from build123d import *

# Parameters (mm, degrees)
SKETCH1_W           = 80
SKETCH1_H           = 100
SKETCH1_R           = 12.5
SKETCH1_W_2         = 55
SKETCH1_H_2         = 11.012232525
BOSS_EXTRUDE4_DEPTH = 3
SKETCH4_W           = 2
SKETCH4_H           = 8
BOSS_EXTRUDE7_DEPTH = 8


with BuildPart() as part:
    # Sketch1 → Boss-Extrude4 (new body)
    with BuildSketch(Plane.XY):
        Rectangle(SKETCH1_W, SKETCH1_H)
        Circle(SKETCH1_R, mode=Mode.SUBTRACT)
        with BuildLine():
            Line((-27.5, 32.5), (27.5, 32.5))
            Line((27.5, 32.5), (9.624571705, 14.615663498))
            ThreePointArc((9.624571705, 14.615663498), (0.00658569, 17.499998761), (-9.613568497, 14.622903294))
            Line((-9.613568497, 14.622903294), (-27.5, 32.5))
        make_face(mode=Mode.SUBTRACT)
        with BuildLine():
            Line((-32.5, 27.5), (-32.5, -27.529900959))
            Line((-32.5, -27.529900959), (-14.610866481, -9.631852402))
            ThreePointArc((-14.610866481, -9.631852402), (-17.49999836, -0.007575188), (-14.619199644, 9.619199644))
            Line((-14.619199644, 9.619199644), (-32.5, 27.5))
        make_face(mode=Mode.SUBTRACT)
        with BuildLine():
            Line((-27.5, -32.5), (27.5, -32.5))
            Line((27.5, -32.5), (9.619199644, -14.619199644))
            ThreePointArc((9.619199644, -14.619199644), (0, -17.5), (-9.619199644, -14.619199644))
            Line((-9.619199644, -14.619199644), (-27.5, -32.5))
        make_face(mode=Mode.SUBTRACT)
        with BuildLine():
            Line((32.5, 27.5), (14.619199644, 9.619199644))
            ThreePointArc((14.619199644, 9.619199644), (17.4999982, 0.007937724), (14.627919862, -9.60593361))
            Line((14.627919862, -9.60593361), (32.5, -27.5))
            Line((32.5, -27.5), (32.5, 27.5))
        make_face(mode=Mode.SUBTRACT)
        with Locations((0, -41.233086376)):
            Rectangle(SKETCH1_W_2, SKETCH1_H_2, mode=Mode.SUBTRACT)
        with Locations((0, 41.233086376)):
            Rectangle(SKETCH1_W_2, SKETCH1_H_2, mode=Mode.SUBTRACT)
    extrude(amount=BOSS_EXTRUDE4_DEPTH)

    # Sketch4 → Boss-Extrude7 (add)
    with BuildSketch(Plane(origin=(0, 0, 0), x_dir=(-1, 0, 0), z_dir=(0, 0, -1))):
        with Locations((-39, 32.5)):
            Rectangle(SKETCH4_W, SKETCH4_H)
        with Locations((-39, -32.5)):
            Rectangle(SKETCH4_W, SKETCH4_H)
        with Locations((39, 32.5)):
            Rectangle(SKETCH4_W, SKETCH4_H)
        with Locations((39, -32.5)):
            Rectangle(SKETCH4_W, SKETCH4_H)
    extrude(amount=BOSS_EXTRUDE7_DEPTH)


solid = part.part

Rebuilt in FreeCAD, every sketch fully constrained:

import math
import FreeCAD as App
import Part
import Sketcher

V = App.Vector

doc = App.newDocument("Part")
params = doc.addObject("Spreadsheet::Sheet", "Params")
for row, (alias, value) in enumerate([
    ("sketch1_diameter", "25 mm"),
    ("sketch1_radius", "17.5 mm"),
    ("sketch1_width", "80 mm"),
    ("sketch1_width2", "55 mm"),
    ("sketch1_height", "100 mm"),
    ("pad1_length", "3 mm"),
    ("sketch2_width", "2 mm"),
    ("sketch2_height", "8 mm"),
    ("pad2_length", "8 mm"),
], start=1):
    params.set(f"A{row}", alias)
    params.set(f"B{row}", "=" + value)
    params.setAlias(f"B{row}", alias)

body = doc.addObject("PartDesign::Body", "Body")

# Sketch on XY plane
sketch1 = body.newObject("Sketcher::SketchObject", "Sketch")
sketch1.AttachmentSupport = (doc.getObject("XY_Plane"), [""])
sketch1.MapMode = "FlatFace"
sketch1.addGeometry(Part.LineSegment(V(-40, 50, 0), V(-40, -50, 0)), False)
sketch1.addGeometry(Part.LineSegment(V(-40, -50, 0), V(40, -50, 0)), False)
sketch1.addGeometry(Part.LineSegment(V(40, -50, 0), V(40, 50, 0)), False)
sketch1.addGeometry(Part.LineSegment(V(40, 50, 0), V(-40, 50, 0)), False)
sketch1.addGeometry(Part.LineSegment(V(-32, -28, 0), V(-32, 28, 0)), False)
sketch1.addGeometry(Part.LineSegment(V(-32, 28, 0), V(-15, 10, 0)), False)
sketch1.addGeometry(Part.ArcOfCircle(Part.Circle(V(0, 0, 0), V(0, 0, 1), 18), math.radians(147), math.radians(213)), False)
sketch1.addGeometry(Part.LineSegment(V(-15, -10, 0), V(-32, -28, 0)), False)
sketch1.addGeometry(Part.LineSegment(V(28, -47, 0), V(-28, -47, 0)), False)
sketch1.addGeometry(Part.LineSegment(V(-28, -47, 0), V(-28, -36, 0)), False)
sketch1.addGeometry(Part.LineSegment(V(-28, -36, 0), V(28, -36, 0)), False)
sketch1.addGeometry(Part.LineSegment(V(28, -36, 0), V(28, -47, 0)), False)
sketch1.addGeometry(Part.LineSegment(V(28, -32, 0), V(-28, -32, 0)), False)
sketch1.addGeometry(Part.LineSegment(V(-28, -32, 0), V(-10, -15, 0)), False)
sketch1.addGeometry(Part.ArcOfCircle(Part.Circle(V(0, 0, 0), V(0, 0, 1), 18), math.radians(-123), math.radians(-57)), False)
sketch1.addGeometry(Part.LineSegment(V(10, -15, 0), V(28, -32, 0)), False)
sketch1.addGeometry(Part.Circle(V(0, 0, 0), V(0, 0, 1), 12), False)
sketch1.addGeometry(Part.LineSegment(V(15, 10, 0), V(32, 28, 0)), False)
sketch1.addGeometry(Part.LineSegment(V(32, 28, 0), V(32, -28, 0)), False)
sketch1.addGeometry(Part.LineSegment(V(32, -28, 0), V(15, -10, 0)), False)
sketch1.addGeometry(Part.ArcOfCircle(Part.Circle(V(0, 0, 0), V(0, 0, 1), 18), math.radians(-33), math.radians(33)), False)
sketch1.addGeometry(Part.LineSegment(V(-10, 15, 0), V(-28, 32, 0)), False)
sketch1.addGeometry(Part.LineSegment(V(-28, 32, 0), V(28, 32, 0)), False)
sketch1.addGeometry(Part.LineSegment(V(28, 32, 0), V(10, 15, 0)), False)
sketch1.addGeometry(Part.ArcOfCircle(Part.Circle(V(0, 0, 0), V(0, 0, 1), 17), math.radians(57), math.radians(123)), False)
sketch1.addGeometry(Part.LineSegment(V(28, 36, 0), V(-28, 36, 0)), False)
sketch1.addGeometry(Part.LineSegment(V(-28, 36, 0), V(-28, 47, 0)), False)
sketch1.addGeometry(Part.LineSegment(V(-28, 47, 0), V(28, 47, 0)), False)
sketch1.addGeometry(Part.LineSegment(V(28, 47, 0), V(28, 36, 0)), False)
sketch1.addConstraint(Sketcher.Constraint("Coincident", 0, 2, 1, 1))
sketch1.addConstraint(Sketcher.Constraint("Coincident", 1, 2, 2, 1))
sketch1.addConstraint(Sketcher.Constraint("Coincident", 2, 2, 3, 1))
sketch1.addConstraint(Sketcher.Constraint("Coincident", 3, 2, 0, 1))
sketch1.addConstraint(Sketcher.Constraint("Coincident", 4, 2, 5, 1))
sketch1.addConstraint(Sketcher.Constraint("Coincident", 5, 2, 6, 1))
sketch1.addConstraint(Sketcher.Constraint("Coincident", 6, 2, 7, 1))
sketch1.addConstraint(Sketcher.Constraint("Coincident", 7, 2, 4, 1))
sketch1.addConstraint(Sketcher.Constraint("Coincident", 8, 2, 9, 1))
sketch1.addConstraint(Sketcher.Constraint("Coincident", 9, 2, 10, 1))
sketch1.addConstraint(Sketcher.Constraint("Coincident", 10, 2, 11, 1))
sketch1.addConstraint(Sketcher.Constraint("Coincident", 11, 2, 8, 1))
sketch1.addConstraint(Sketcher.Constraint("Coincident", 12, 2, 13, 1))
sketch1.addConstraint(Sketcher.Constraint("Coincident", 13, 2, 14, 1))
sketch1.addConstraint(Sketcher.Constraint("Coincident", 14, 2, 15, 1))
sketch1.addConstraint(Sketcher.Constraint("Coincident", 15, 2, 12, 1))
sketch1.addConstraint(Sketcher.Constraint("Coincident", 17, 2, 18, 1))
sketch1.addConstraint(Sketcher.Constraint("Coincident", 18, 2, 19, 1))
sketch1.addConstraint(Sketcher.Constraint("Coincident", 19, 2, 20, 1))
sketch1.addConstraint(Sketcher.Constraint("Coincident", 20, 2, 17, 1))
sketch1.addConstraint(Sketcher.Constraint("Coincident", 21, 2, 22, 1))
sketch1.addConstraint(Sketcher.Constraint("Coincident", 22, 2, 23, 1))
sketch1.addConstraint(Sketcher.Constraint("Coincident", 23, 2, 24, 1))
sketch1.addConstraint(Sketcher.Constraint("Coincident", 24, 2, 21, 1))
sketch1.addConstraint(Sketcher.Constraint("Coincident", 25, 2, 26, 1))
sketch1.addConstraint(Sketcher.Constraint("Coincident", 26, 2, 27, 1))
sketch1.addConstraint(Sketcher.Constraint("Coincident", 27, 2, 28, 1))
sketch1.addConstraint(Sketcher.Constraint("Coincident", 28, 2, 25, 1))
sketch1.addConstraint(Sketcher.Constraint("Vertical", 0))
sketch1.addConstraint(Sketcher.Constraint("Horizontal", 1))
sketch1.addConstraint(Sketcher.Constraint("Vertical", 2))
sketch1.addConstraint(Sketcher.Constraint("Horizontal", 3))
sketch1.addConstraint(Sketcher.Constraint("Vertical", 4))
sketch1.addConstraint(Sketcher.Constraint("Horizontal", 8))
sketch1.addConstraint(Sketcher.Constraint("Vertical", 9))
sketch1.addConstraint(Sketcher.Constraint("Horizontal", 10))
sketch1.addConstraint(Sketcher.Constraint("Vertical", 11))
sketch1.addConstraint(Sketcher.Constraint("Horizontal", 12))
sketch1.addConstraint(Sketcher.Constraint("Vertical", 18))
sketch1.addConstraint(Sketcher.Constraint("Horizontal", 22))
sketch1.addConstraint(Sketcher.Constraint("Horizontal", 25))
sketch1.addConstraint(Sketcher.Constraint("Vertical", 26))
sketch1.addConstraint(Sketcher.Constraint("Horizontal", 27))
sketch1.addConstraint(Sketcher.Constraint("Vertical", 28))
sketch1.addConstraint(Sketcher.Constraint("Coincident", 6, 3, -1, 1))
sketch1.addConstraint(Sketcher.Constraint("Coincident", 14, 3, -1, 1))
sketch1.addConstraint(Sketcher.Constraint("Coincident", 16, 3, -1, 1))
sketch1.addConstraint(Sketcher.Constraint("Coincident", 20, 3, -1, 1))
sketch1.addConstraint(Sketcher.Constraint("Coincident", 24, 3, -1, 1))
sketch1.addConstraint(Sketcher.Constraint("Equal", 6, 14))
sketch1.addConstraint(Sketcher.Constraint("Equal", 14, 20))
sketch1.addConstraint(Sketcher.Constraint("Equal", 20, 24))
sketch1.addConstraint(Sketcher.Constraint("Symmetric", 0, 2, 2, 2, -1, 1))
sketch1.addConstraint(Sketcher.Constraint("Symmetric", 4, 2, 18, 2, -1, 1))
sketch1.addConstraint(Sketcher.Constraint("Symmetric", 15, 2, 21, 2, -1, 1))
sketch1.addConstraint(Sketcher.Constraint("Symmetric", 10, 2, 25, 2, -1, 1))
sketch1.addConstraint(Sketcher.Constraint("Symmetric", 8, 2, 27, 2, -1, 1))
sketch1.addConstraint(Sketcher.Constraint("Perpendicular", 5, 13))
sketch1.addConstraint(Sketcher.Constraint("Perpendicular", 13, 15))
sketch1.addConstraint(Sketcher.Constraint("Perpendicular", 15, 17))
sketch1.addConstraint(Sketcher.Constraint("Parallel", 7, 23))
sketch1.addConstraint(Sketcher.Constraint("Horizontal", 13, 2, 14, 2))
sketch1.addConstraint(Sketcher.Constraint("Horizontal", 4, 2, 17, 2))
sketch1.addConstraint(Sketcher.Constraint("Horizontal", 5, 2, 20, 2))
sketch1.addConstraint(Sketcher.Constraint("Vertical", 9, 2, 12, 2))
sketch1.addConstraint(Sketcher.Constraint("Vertical", 11, 2, 15, 2))
sketch1.addConstraint(Sketcher.Constraint("Vertical", 15, 2, 22, 2))
sketch1.addConstraint(Sketcher.Constraint("Equal", 27, 18))
sketch1.addConstraint(Sketcher.Constraint("Equal", 5, 13))
sketch1.addConstraint(Sketcher.Constraint("Diameter", 16, 25.0))
sketch1.addConstraint(Sketcher.Constraint("Radius", 6, 17.5))
sketch1.addConstraint(Sketcher.Constraint("DistanceX", 1, 1, 1, 2, 80.0))
sketch1.addConstraint(Sketcher.Constraint("DistanceX", 8, 2, 8, 1, 55.0))
sketch1.addConstraint(Sketcher.Constraint("DistanceY", 0, 2, 0, 1, 100.0))
sketch1.addConstraint(Sketcher.Constraint("DistanceX", 7, 2, 8, 2, 5.0))
sketch1.addConstraint(Sketcher.Constraint("DistanceY", 4, 1, 4, 2, 55.029901))
sketch1.addConstraint(Sketcher.Constraint("DistanceY", 8, 2, 7, 2, 19.209302))
sketch1.addConstraint(Sketcher.Constraint("DistanceY", 24, 2, 26, 2, 32.116299))
sketch1.addConstraint(Sketcher.Constraint("Distance", 7, 25.30536))
sketch1.addConstraint(Sketcher.Constraint("Distance", 19, 25.29049))
sketch1.addConstraint(Sketcher.Constraint("DistanceY", 9, 1, 9, 2, 11.012233))
sketch1.setExpression("Constraints[69]", "Params.sketch1_diameter")
sketch1.setExpression("Constraints[70]", "Params.sketch1_radius")
sketch1.setExpression("Constraints[71]", "Params.sketch1_width")
sketch1.setExpression("Constraints[72]", "Params.sketch1_width2")
sketch1.setExpression("Constraints[73]", "Params.sketch1_height")
pad1 = body.newObject("PartDesign::Pad", "Pad")
pad1.Profile = sketch1
pad1.setExpression("Length", "Params.pad1_length")

# Sketch on XY plane
sketch2 = body.newObject("Sketcher::SketchObject", "Sketch001")
sketch2.AttachmentSupport = (doc.getObject("XY_Plane"), [""])
sketch2.MapMode = "FlatFace"
sketch2.addGeometry(Part.LineSegment(V(40, 36.5, 0), V(40, 28.5, 0)), False)
sketch2.addGeometry(Part.LineSegment(V(40, 28.5, 0), V(38, 28.5, 0)), False)
sketch2.addGeometry(Part.LineSegment(V(38, 28.5, 0), V(38, 36.5, 0)), False)
sketch2.addGeometry(Part.LineSegment(V(38, 36.5, 0), V(40, 36.5, 0)), False)
sketch2.addGeometry(Part.LineSegment(V(40, -28.5, 0), V(40, -36.5, 0)), False)
sketch2.addGeometry(Part.LineSegment(V(40, -36.5, 0), V(38, -36.5, 0)), False)
sketch2.addGeometry(Part.LineSegment(V(38, -36.5, 0), V(38, -28.5, 0)), False)
sketch2.addGeometry(Part.LineSegment(V(38, -28.5, 0), V(40, -28.5, 0)), False)
sketch2.addGeometry(Part.LineSegment(V(-38, 36.5, 0), V(-38, 28.5, 0)), False)
sketch2.addGeometry(Part.LineSegment(V(-38, 28.5, 0), V(-40, 28.5, 0)), False)
sketch2.addGeometry(Part.LineSegment(V(-40, 28.5, 0), V(-40, 36.5, 0)), False)
sketch2.addGeometry(Part.LineSegment(V(-40, 36.5, 0), V(-38, 36.5, 0)), False)
sketch2.addGeometry(Part.LineSegment(V(-38, -28.5, 0), V(-38, -36.5, 0)), False)
sketch2.addGeometry(Part.LineSegment(V(-38, -36.5, 0), V(-40, -36.5, 0)), False)
sketch2.addGeometry(Part.LineSegment(V(-40, -36.5, 0), V(-40, -28.5, 0)), False)
sketch2.addGeometry(Part.LineSegment(V(-40, -28.5, 0), V(-38, -28.5, 0)), False)
sketch2.addConstraint(Sketcher.Constraint("Coincident", 0, 2, 1, 1))
sketch2.addConstraint(Sketcher.Constraint("Coincident", 1, 2, 2, 1))
sketch2.addConstraint(Sketcher.Constraint("Coincident", 2, 2, 3, 1))
sketch2.addConstraint(Sketcher.Constraint("Coincident", 3, 2, 0, 1))
sketch2.addConstraint(Sketcher.Constraint("Coincident", 4, 2, 5, 1))
sketch2.addConstraint(Sketcher.Constraint("Coincident", 5, 2, 6, 1))
sketch2.addConstraint(Sketcher.Constraint("Coincident", 6, 2, 7, 1))
sketch2.addConstraint(Sketcher.Constraint("Coincident", 7, 2, 4, 1))
sketch2.addConstraint(Sketcher.Constraint("Coincident", 8, 2, 9, 1))
sketch2.addConstraint(Sketcher.Constraint("Coincident", 9, 2, 10, 1))
sketch2.addConstraint(Sketcher.Constraint("Coincident", 10, 2, 11, 1))
sketch2.addConstraint(Sketcher.Constraint("Coincident", 11, 2, 8, 1))
sketch2.addConstraint(Sketcher.Constraint("Coincident", 12, 2, 13, 1))
sketch2.addConstraint(Sketcher.Constraint("Coincident", 13, 2, 14, 1))
sketch2.addConstraint(Sketcher.Constraint("Coincident", 14, 2, 15, 1))
sketch2.addConstraint(Sketcher.Constraint("Coincident", 15, 2, 12, 1))
sketch2.addConstraint(Sketcher.Constraint("Vertical", 0))
sketch2.addConstraint(Sketcher.Constraint("Horizontal", 1))
sketch2.addConstraint(Sketcher.Constraint("Vertical", 2))
sketch2.addConstraint(Sketcher.Constraint("Horizontal", 3))
sketch2.addConstraint(Sketcher.Constraint("Vertical", 4))
sketch2.addConstraint(Sketcher.Constraint("Horizontal", 5))
sketch2.addConstraint(Sketcher.Constraint("Vertical", 6))
sketch2.addConstraint(Sketcher.Constraint("Horizontal", 7))
sketch2.addConstraint(Sketcher.Constraint("Vertical", 8))
sketch2.addConstraint(Sketcher.Constraint("Horizontal", 9))
sketch2.addConstraint(Sketcher.Constraint("Vertical", 10))
sketch2.addConstraint(Sketcher.Constraint("Horizontal", 11))
sketch2.addConstraint(Sketcher.Constraint("Vertical", 12))
sketch2.addConstraint(Sketcher.Constraint("Horizontal", 13))
sketch2.addConstraint(Sketcher.Constraint("Vertical", 14))
sketch2.addConstraint(Sketcher.Constraint("Horizontal", 15))
sketch2.addConstraint(Sketcher.Constraint("Symmetric", 6, 2, 8, 2, -1, 1))
sketch2.addConstraint(Sketcher.Constraint("Symmetric", 4, 2, 10, 2, -1, 1))
sketch2.addConstraint(Sketcher.Constraint("Symmetric", 2, 2, 12, 2, -1, 1))
sketch2.addConstraint(Sketcher.Constraint("Symmetric", 0, 2, 14, 2, -1, 1))
sketch2.addConstraint(Sketcher.Constraint("Symmetric", 1, 2, 8, 2, -2))
sketch2.addConstraint(Sketcher.Constraint("Symmetric", 3, 2, 10, 2, -2))
sketch2.addConstraint(Sketcher.Constraint("DistanceX", 1, 2, 1, 1, 2.0))
sketch2.addConstraint(Sketcher.Constraint("DistanceY", 0, 2, 0, 1, 8.0))
sketch2.addConstraint(Sketcher.Constraint("DistanceX", -1, 1, 0, 2, 40.0))
sketch2.addConstraint(Sketcher.Constraint("DistanceY", 4, 2, 0, 2, 65.0))
sketch2.setExpression("Constraints[38]", "Params.sketch2_width")
sketch2.setExpression("Constraints[39]", "Params.sketch2_height")
pad2 = body.newObject("PartDesign::Pad", "Pad001")
pad2.Profile = sketch2
pad2.setExpression("Length", "Params.pad2_length")
pad2.Reversed = True

doc.recompute()
